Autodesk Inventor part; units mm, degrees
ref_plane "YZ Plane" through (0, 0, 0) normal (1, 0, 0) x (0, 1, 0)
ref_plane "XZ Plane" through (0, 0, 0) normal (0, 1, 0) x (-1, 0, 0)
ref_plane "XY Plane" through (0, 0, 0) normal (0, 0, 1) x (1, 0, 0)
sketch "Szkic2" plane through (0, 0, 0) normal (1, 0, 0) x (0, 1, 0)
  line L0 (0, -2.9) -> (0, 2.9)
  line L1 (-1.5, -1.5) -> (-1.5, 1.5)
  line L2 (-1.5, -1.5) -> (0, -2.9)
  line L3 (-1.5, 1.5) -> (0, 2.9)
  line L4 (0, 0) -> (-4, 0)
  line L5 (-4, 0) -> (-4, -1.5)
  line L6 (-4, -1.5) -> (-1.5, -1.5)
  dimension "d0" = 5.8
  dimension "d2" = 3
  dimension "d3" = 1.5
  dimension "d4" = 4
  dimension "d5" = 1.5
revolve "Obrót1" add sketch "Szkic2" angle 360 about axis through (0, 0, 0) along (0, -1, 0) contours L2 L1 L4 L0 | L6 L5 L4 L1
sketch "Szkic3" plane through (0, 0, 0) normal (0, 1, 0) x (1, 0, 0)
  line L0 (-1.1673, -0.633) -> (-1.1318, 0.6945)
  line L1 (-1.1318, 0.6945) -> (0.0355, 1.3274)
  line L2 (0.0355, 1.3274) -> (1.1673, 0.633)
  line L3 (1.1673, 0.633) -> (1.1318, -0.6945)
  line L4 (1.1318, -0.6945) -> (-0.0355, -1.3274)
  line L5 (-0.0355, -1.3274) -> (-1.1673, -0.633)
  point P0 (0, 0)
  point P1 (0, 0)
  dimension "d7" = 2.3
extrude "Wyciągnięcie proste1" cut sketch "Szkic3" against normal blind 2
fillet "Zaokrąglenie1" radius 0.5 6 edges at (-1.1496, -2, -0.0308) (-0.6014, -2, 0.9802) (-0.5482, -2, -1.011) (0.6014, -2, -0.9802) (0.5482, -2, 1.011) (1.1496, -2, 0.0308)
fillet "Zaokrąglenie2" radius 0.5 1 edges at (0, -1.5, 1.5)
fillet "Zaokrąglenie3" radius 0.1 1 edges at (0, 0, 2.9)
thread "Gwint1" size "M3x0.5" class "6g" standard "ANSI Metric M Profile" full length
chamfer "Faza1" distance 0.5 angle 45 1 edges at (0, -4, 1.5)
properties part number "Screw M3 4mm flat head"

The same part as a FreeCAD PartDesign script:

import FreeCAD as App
import Part
import Sketcher

V = App.Vector
Q = App.Units.Quantity


def edges_at(feature, points):
    """Names of the edges that pass closest to the given points."""
    edges = feature.Shape.Edges
    near = lambda p: min(range(len(edges)), key=lambda i: edges[i].distToShape(Part.Vertex(*p))[0])
    return sorted({f"Edge{near(p) + 1}" for p in points})

doc = App.newDocument("Part")
body = doc.addObject("PartDesign::Body", "Body")

# Sketch on YZ plane
sketch1 = doc.addObject("Sketcher::SketchObject", "Sketch")
body.addObject(sketch1)
sketch1.AttachmentSupport = (doc.YZ_Plane, [""])
sketch1.MapMode = "FlatFace"
sketch1.addGeometry(Part.LineSegment(V(-1.5, -1.5, 0), V(0, -2.9, 0)), False)
sketch1.addGeometry(Part.LineSegment(V(0, -2.9, 0), V(0, 0, 0)), False)
sketch1.addGeometry(Part.LineSegment(V(0, 0, 0), V(-4, 0, 0)), False)
sketch1.addGeometry(Part.LineSegment(V(-4, 0, 0), V(-4, -1.5, 0)), False)
sketch1.addGeometry(Part.LineSegment(V(-4, -1.5, 0), V(-1.5, -1.5, 0)), False)
sketch1.addConstraint(Sketcher.Constraint("Coincident", 0, 2, 1, 1))
sketch1.addConstraint(Sketcher.Constraint("Coincident", 1, 2, 2, 1))
sketch1.addConstraint(Sketcher.Constraint("Coincident", 2, 2, 3, 1))
sketch1.addConstraint(Sketcher.Constraint("Coincident", 3, 2, 4, 1))
sketch1.addConstraint(Sketcher.Constraint("Coincident", 4, 2, 0, 1))
sketch1.addConstraint(Sketcher.Constraint("Vertical", 1))
sketch1.addConstraint(Sketcher.Constraint("Horizontal", 2))
sketch1.addConstraint(Sketcher.Constraint("Vertical", 3))
sketch1.addConstraint(Sketcher.Constraint("Horizontal", 4))
sketch1.addConstraint(Sketcher.Constraint("Coincident", 1, 2, -1, 1))
sketch1.addConstraint(Sketcher.Constraint("DistanceX", 2, 2, 2, 1, 4.0))
sketch1.addConstraint(Sketcher.Constraint("DistanceY", 3, 2, 3, 1, 1.5))
sketch1.addConstraint(Sketcher.Constraint("DistanceX", 4, 2, -1, 1, 1.5))
sketch1.addConstraint(Sketcher.Constraint("DistanceY", 1, 1, 1, 2, 2.9))
revolution = doc.addObject("PartDesign::Revolution", "Revolution")
body.addObject(revolution)
revolution.Profile = sketch1
revolution.ReferenceAxis = (sketch1, ["H_Axis"])
revolution.Angle = 360

# Sketch on XZ plane
sketch2 = doc.addObject("Sketcher::SketchObject", "Sketch001")
body.addObject(sketch2)
sketch2.AttachmentSupport = (doc.XZ_Plane, [""])
sketch2.MapMode = "FlatFace"
sketch2.addGeometry(Part.LineSegment(V(-1.1, -0.7, 0), V(-1.2, 0.6, 0)), False)
sketch2.addGeometry(Part.LineSegment(V(-1.2, 0.6, 0), V(0, 1.3, 0)), False)
sketch2.addGeometry(Part.LineSegment(V(0, 1.3, 0), V(1.1, 0.7, 0)), False)
sketch2.addGeometry(Part.LineSegment(V(1.1, 0.7, 0), V(1.2, -0.6, 0)), False)
sketch2.addGeometry(Part.LineSegment(V(1.2, -0.6, 0), V(0, -1.3, 0)), False)
sketch2.addGeometry(Part.LineSegment(V(0, -1.3, 0), V(-1.1, -0.7, 0)), False)
sketch2.addConstraint(Sketcher.Constraint("Coincident", 0, 2, 1, 1))
sketch2.addConstraint(Sketcher.Constraint("Coincident", 1, 2, 2, 1))
sketch2.addConstraint(Sketcher.Constraint("Coincident", 2, 2, 3, 1))
sketch2.addConstraint(Sketcher.Constraint("Coincident", 3, 2, 4, 1))
sketch2.addConstraint(Sketcher.Constraint("Coincident", 4, 2, 5, 1))
sketch2.addConstraint(Sketcher.Constraint("Coincident", 5, 2, 0, 1))
sketch2.addConstraint(Sketcher.Constraint("Symmetric", 0, 2, 3, 2, -1, 1))
sketch2.addConstraint(Sketcher.Constraint("Symmetric", 1, 2, 4, 2, -1, 1))
sketch2.addConstraint(Sketcher.Constraint("Symmetric", 2, 2, 5, 2, -1, 1))
sketch2.addConstraint(Sketcher.Constraint("Equal", 0, 1))
sketch2.addConstraint(Sketcher.Constraint("Equal", 1, 2))
sketch2.addConstraint(Sketcher.Constraint("Angle", 1, Q("31.5306 deg")))
sketch2.addConstraint(Sketcher.Constraint("Distance", 0, 1.328))
sketch2.addConstraint(Sketcher.Constraint("DistanceY", -1, 1, 0, 2, 0.633))
sketch2.addConstraint(Sketcher.Constraint("DistanceY", 2, 2, 1, 2, 0.633))
pocket1 = doc.addObject("PartDesign::Pocket", "Pocket")
body.addObject(pocket1)
pocket1.Profile = sketch2
pocket1.Length = 2
pocket1.Reversed = True
doc.recompute()

fillet = doc.addObject("PartDesign::Fillet", "Fillet")
body.addObject(fillet)
fillet.Base = (pocket1, edges_at(pocket1, [
    (-1.15, -2, -0.031),
    (-0.601, -2, 0.98),
    (-0.548, -2, -1.011),
    (0.601, -2, -0.98),
    (0.548, -2, 1.011),
    (1.15, -2, 0.031),
]))
fillet.Radius = 0.5
doc.recompute()

fillet2 = doc.addObject("PartDesign::Fillet", "Fillet001")
body.addObject(fillet2)
fillet2.Base = (fillet, edges_at(fillet, [(0, -1.5, 1.5)]))
fillet2.Radius = 0.5
doc.recompute()

fillet3 = doc.addObject("PartDesign::Fillet", "Fillet002")
body.addObject(fillet3)
fillet3.Base = (fillet2, edges_at(fillet2, [(0, 0, 2.9)]))
fillet3.Radius = 0.1
doc.recompute()

chamfer = doc.addObject("PartDesign::Chamfer", "Chamfer")
body.addObject(chamfer)
chamfer.Base = (fillet3, edges_at(fillet3, [(0, -4, 1.5)]))
chamfer.Size = 0.5

doc.recompute()
